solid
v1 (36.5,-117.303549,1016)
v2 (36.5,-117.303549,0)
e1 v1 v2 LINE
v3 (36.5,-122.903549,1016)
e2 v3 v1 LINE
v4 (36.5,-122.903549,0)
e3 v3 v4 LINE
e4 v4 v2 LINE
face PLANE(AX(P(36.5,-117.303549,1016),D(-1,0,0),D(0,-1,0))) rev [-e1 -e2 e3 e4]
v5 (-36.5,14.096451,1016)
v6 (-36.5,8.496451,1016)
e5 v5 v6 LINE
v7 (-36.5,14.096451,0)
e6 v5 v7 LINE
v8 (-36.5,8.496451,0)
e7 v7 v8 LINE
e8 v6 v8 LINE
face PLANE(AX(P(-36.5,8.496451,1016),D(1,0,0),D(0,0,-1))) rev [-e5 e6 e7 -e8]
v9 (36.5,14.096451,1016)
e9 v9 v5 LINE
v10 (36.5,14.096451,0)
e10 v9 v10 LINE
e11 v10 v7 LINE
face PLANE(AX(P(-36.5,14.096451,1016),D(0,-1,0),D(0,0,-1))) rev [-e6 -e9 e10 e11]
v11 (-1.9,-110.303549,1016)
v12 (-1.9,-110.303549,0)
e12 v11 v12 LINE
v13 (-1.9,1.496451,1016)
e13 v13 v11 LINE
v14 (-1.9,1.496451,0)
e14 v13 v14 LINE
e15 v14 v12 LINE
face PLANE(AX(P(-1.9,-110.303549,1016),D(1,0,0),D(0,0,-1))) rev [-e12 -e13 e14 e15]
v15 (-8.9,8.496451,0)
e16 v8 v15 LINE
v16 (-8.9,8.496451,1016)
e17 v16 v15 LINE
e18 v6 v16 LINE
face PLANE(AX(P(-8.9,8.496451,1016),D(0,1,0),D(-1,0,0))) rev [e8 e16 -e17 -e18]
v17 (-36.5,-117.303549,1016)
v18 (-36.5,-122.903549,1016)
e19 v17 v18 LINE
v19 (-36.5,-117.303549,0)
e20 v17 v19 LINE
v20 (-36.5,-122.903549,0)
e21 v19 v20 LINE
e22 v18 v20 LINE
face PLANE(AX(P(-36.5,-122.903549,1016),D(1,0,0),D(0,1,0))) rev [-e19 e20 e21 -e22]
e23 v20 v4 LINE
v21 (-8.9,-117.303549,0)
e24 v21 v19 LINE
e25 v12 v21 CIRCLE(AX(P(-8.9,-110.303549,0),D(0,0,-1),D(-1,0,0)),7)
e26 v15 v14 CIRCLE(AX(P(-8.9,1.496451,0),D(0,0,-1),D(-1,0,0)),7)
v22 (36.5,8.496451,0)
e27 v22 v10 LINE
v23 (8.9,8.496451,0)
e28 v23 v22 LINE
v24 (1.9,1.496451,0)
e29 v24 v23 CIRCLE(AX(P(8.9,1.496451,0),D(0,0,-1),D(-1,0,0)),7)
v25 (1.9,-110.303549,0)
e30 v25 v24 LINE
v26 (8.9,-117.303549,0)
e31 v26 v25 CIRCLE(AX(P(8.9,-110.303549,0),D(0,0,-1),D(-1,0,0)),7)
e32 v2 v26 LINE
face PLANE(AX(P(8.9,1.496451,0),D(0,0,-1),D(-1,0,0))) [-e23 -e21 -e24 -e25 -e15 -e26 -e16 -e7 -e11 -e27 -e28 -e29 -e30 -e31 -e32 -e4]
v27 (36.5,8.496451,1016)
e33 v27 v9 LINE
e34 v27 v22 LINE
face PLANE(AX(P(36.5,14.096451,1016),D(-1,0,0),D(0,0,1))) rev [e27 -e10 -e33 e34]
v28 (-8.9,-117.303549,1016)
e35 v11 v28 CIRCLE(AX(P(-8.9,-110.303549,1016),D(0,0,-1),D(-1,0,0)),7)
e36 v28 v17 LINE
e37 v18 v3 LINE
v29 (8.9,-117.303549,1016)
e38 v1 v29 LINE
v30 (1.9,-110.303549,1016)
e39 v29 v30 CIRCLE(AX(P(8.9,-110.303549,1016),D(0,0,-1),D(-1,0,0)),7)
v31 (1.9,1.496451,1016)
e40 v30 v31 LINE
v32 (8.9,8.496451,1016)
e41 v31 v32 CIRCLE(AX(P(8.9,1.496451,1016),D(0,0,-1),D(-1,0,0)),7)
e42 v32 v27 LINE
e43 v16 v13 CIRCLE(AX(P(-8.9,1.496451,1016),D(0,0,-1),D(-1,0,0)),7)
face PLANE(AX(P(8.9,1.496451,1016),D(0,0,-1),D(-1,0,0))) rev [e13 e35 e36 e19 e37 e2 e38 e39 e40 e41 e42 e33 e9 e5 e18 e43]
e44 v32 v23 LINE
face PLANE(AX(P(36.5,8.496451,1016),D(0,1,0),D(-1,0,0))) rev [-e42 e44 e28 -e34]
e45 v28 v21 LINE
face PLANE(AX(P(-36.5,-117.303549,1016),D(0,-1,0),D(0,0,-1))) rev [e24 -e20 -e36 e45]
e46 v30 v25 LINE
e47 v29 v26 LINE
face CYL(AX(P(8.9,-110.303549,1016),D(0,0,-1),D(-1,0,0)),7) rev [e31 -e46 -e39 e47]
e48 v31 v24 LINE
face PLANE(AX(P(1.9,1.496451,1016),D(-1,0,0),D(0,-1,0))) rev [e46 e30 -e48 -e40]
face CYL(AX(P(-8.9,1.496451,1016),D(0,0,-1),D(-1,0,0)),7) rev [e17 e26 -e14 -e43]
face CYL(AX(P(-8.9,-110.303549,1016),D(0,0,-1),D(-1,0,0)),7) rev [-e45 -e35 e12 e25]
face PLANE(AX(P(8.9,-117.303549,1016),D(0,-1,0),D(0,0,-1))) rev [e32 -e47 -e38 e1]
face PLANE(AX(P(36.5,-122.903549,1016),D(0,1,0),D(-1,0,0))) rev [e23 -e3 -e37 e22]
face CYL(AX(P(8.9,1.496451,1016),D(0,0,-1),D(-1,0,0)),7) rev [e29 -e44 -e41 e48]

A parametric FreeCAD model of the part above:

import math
import FreeCAD as App
import Part
import Sketcher
from FreeCAD import Vector
Q = App.Units.Quantity

doc = App.newDocument("Part")
params = doc.addObject("Spreadsheet::Sheet", "Params")
for row, (alias, value) in enumerate([
    ("sketch1_radius", "7 mm"),
    ("sketch1_width", "73 mm"),
    ("sketch1_width2", "27.6 mm"),
    ("sketch1_height", "5.6 mm"),
    ("sketch1_height2", "111.8 mm"),
    ("pad1_length", "1016 mm"),
], start=1):
    params.set(f"A{row}", alias)
    params.set(f"B{row}", "=" + value)
    params.setAlias(f"B{row}", alias)

body = doc.addObject("PartDesign::Body", "Body")

sketch1 = body.newObject("Sketcher::SketchObject", "Sketch")
sketch1.AttachmentSupport = (doc.getObject("XY_Plane"), [""])
sketch1.MapMode = "FlatFace"
sketch1.addGeometry([
    Part.LineSegment(Vector(36.5, 14.096451, 0), Vector(-36.5, 14.096451, 0)),
    Part.LineSegment(Vector(-36.5, 14.096451, 0), Vector(-36.5, 8.496451, 0)),
    Part.LineSegment(Vector(-36.5, 8.496451, 0), Vector(-8.9, 8.496451, 0)),
    Part.ArcOfCircle(Part.Circle(Vector(-8.9, 1.496451, 0), Vector(0, 0, 1), 7), math.radians(0), math.radians(90)),
    Part.LineSegment(Vector(-1.9, 1.496451, 0), Vector(-1.9, -110.303549, 0)),
    Part.ArcOfCircle(Part.Circle(Vector(-8.9, -110.303549, 0), Vector(0, 0, 1), 7), math.radians(-90), math.radians(0)),
    Part.LineSegment(Vector(-8.9, -117.303549, 0), Vector(-36.5, -117.303549, 0)),
    Part.LineSegment(Vector(-36.5, -117.303549, 0), Vector(-36.5, -122.903549, 0)),
    Part.LineSegment(Vector(-36.5, -122.903549, 0), Vector(36.5, -122.903549, 0)),
    Part.LineSegment(Vector(36.5, -122.903549, 0), Vector(36.5, -117.303549, 0)),
    Part.LineSegment(Vector(36.5, -117.303549, 0), Vector(8.9, -117.303549, 0)),
    Part.ArcOfCircle(Part.Circle(Vector(8.9, -110.303549, 0), Vector(0, 0, 1), 7), math.radians(180), math.radians(270)),
    Part.LineSegment(Vector(1.9, -110.303549, 0), Vector(1.9, 1.496451, 0)),
    Part.ArcOfCircle(Part.Circle(Vector(8.9, 1.496451, 0), Vector(0, 0, 1), 7), math.radians(90), math.radians(180)),
    Part.LineSegment(Vector(8.9, 8.496451, 0), Vector(36.5, 8.496451, 0)),
    Part.LineSegment(Vector(36.5, 8.496451, 0), Vector(36.5, 14.096451, 0)),
], False)
sketch1.addConstraint([
    Sketcher.Constraint("Coincident", 0, 2, 1, 1),
    Sketcher.Constraint("Coincident", 1, 2, 2, 1),
    Sketcher.Constraint("Tangent", 2, 2, 3, 2),
    Sketcher.Constraint("Tangent", 3, 1, 4, 1),
    Sketcher.Constraint("Tangent", 4, 2, 5, 2),
    Sketcher.Constraint("Tangent", 5, 1, 6, 1),
    Sketcher.Constraint("Coincident", 6, 2, 7, 1),
    Sketcher.Constraint("Coincident", 7, 2, 8, 1),
    Sketcher.Constraint("Coincident", 8, 2, 9, 1),
    Sketcher.Constraint("Coincident", 9, 2, 10, 1),
    Sketcher.Constraint("Tangent", 10, 2, 11, 2),
    Sketcher.Constraint("Tangent", 11, 1, 12, 1),
    Sketcher.Constraint("Tangent", 12, 2, 13, 2),
    Sketcher.Constraint("Tangent", 13, 1, 14, 1),
    Sketcher.Constraint("Coincident", 14, 2, 15, 1),
    Sketcher.Constraint("Coincident", 15, 2, 0, 1),
    Sketcher.Constraint("Horizontal", 0),
    Sketcher.Constraint("Vertical", 1),
    Sketcher.Constraint("Horizontal", 2),
    Sketcher.Constraint("Vertical", 4),
    Sketcher.Constraint("Horizontal", 6),
    Sketcher.Constraint("Vertical", 7),
    Sketcher.Constraint("Horizontal", 8),
    Sketcher.Constraint("Vertical", 9),
    Sketcher.Constraint("Horizontal", 10),
    Sketcher.Constraint("Vertical", 12),
    Sketcher.Constraint("Horizontal", 14),
    Sketcher.Constraint("Vertical", 15),
    Sketcher.Constraint("Equal", 3, 5),
    Sketcher.Constraint("Equal", 5, 11),
    Sketcher.Constraint("Equal", 11, 13),
    Sketcher.Constraint("Symmetric", 5, 3, 11, 3, -2),
    Sketcher.Constraint("Symmetric", 1, 2, 14, 2, -2),
    Sketcher.Constraint("Vertical", 1, 2, 6, 2),
    Sketcher.Constraint("Vertical", 9, 2, 14, 2),
    Sketcher.Constraint("Equal", 1, 7),
    Sketcher.Constraint("Radius", 3, Q("7 mm")),
    Sketcher.Constraint("DistanceX", 0, 2, 0, 1, Q("73 mm")),
    Sketcher.Constraint("DistanceX", 2, 1, 2, 2, Q("27.6 mm")),
    Sketcher.Constraint("DistanceY", 1, 2, 1, 1, Q("5.6 mm")),
    Sketcher.Constraint("DistanceY", 4, 2, 4, 1, Q("111.8 mm")),
    Sketcher.Constraint("DistanceY", -1, 1, 3, 3, Q("1.496451 mm")),
])
sketch1.setExpression("Constraints[36]", "Params.sketch1_radius")
sketch1.setExpression("Constraints[37]", "Params.sketch1_width")
sketch1.setExpression("Constraints[38]", "Params.sketch1_width2")
sketch1.setExpression("Constraints[39]", "Params.sketch1_height")
sketch1.setExpression("Constraints[40]", "Params.sketch1_height2")
pad1 = body.newObject("PartDesign::Pad", "Pad")
pad1.Profile = sketch1
pad1.setExpression("Length", "Params.pad1_length")

doc.recompute()
